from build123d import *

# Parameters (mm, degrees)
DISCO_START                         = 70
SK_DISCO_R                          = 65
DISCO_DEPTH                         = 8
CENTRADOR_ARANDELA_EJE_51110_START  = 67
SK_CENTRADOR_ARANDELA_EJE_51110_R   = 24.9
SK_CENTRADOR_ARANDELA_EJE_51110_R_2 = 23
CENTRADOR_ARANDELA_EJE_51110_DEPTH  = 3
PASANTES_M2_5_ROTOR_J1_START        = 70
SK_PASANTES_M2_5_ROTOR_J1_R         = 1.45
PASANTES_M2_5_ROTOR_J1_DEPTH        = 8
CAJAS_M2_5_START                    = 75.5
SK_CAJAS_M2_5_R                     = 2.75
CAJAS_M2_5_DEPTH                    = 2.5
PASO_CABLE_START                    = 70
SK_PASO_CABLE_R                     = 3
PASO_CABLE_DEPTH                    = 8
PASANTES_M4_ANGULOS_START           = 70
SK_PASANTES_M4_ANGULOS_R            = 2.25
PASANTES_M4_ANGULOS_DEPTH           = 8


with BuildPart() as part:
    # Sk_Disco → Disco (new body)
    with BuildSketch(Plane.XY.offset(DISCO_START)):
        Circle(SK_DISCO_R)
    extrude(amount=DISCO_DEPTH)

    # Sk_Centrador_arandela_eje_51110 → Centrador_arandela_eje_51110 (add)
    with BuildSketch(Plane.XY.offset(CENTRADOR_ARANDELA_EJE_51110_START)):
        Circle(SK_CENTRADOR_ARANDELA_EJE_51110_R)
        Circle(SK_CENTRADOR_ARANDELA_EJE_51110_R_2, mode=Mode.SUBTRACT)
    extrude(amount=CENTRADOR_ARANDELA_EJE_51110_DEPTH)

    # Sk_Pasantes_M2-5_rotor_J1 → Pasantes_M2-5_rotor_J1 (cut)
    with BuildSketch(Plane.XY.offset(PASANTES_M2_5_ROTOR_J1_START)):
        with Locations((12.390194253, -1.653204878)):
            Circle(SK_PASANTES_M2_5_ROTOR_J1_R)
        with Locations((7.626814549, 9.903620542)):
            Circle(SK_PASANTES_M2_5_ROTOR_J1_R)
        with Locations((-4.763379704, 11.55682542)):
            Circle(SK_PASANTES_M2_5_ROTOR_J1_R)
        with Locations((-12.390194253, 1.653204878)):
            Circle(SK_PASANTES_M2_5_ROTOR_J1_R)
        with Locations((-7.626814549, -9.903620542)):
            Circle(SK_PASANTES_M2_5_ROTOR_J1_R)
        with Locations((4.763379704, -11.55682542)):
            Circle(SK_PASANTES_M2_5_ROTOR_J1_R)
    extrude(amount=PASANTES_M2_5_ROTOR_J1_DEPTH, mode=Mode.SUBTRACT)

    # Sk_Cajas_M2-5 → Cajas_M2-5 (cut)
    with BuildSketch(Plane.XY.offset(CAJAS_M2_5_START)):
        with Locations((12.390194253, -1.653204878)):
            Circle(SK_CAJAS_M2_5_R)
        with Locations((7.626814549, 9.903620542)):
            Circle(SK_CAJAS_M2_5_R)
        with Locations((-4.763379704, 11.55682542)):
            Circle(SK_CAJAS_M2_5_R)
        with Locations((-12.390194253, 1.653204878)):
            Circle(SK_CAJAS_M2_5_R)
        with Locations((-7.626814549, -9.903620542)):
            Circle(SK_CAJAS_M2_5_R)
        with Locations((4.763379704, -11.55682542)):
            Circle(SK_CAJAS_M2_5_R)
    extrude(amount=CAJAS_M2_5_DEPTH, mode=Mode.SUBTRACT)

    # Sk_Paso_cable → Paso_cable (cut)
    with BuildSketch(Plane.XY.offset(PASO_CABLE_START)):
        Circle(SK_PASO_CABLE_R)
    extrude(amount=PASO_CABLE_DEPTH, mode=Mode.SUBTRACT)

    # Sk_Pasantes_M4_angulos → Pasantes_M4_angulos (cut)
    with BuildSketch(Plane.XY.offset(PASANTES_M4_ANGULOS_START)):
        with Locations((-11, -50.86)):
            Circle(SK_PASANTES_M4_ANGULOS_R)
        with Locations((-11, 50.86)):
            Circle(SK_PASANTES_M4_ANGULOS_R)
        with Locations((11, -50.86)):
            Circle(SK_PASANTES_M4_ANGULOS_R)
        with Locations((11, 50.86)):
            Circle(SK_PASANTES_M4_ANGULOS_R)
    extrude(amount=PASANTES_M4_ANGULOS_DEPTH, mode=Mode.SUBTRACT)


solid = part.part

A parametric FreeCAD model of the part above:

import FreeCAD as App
import Part
import Sketcher
from FreeCAD import Vector
Q = App.Units.Quantity

doc = App.newDocument("Part")
body = doc.addObject("PartDesign::Body", "Body")

# Sketch on XY plane
sketch1 = body.newObject("Sketcher::SketchObject", "Sketch")
sketch1.AttachmentSupport = (doc.getObject("XY_Plane"), [""])
sketch1.MapMode = "FlatFace"
sketch1.AttachmentOffset = App.Placement(Vector(0, 0, 70), App.Rotation())
sketch1.addGeometry(Part.Circle(Vector(0, 0, 0), Vector(0, 0, 1), 65), False)
sketch1.addConstraint([
    Sketcher.Constraint("Coincident", 0, 3, -1, 1),
    Sketcher.Constraint("Diameter", 0, Q("130 mm")),
])
pad1 = body.newObject("PartDesign::Pad", "Pad")
pad1.Profile = sketch1
pad1.Length = 8

# Sketch on XY plane
sketch2 = body.newObject("Sketcher::SketchObject", "Sketch001")
sketch2.AttachmentSupport = (doc.getObject("XY_Plane"), [""])
sketch2.MapMode = "FlatFace"
sketch2.AttachmentOffset = App.Placement(Vector(0, 0, 67), App.Rotation())
sketch2.addGeometry([
    Part.Circle(Vector(0, 0, 0), Vector(0, 0, 1), 25),
    Part.Circle(Vector(0, 0, 0), Vector(0, 0, 1), 23),
], False)
sketch2.addConstraint([
    Sketcher.Constraint("Coincident", 0, 3, -1, 1),
    Sketcher.Constraint("Coincident", 1, 3, -1, 1),
    Sketcher.Constraint("Diameter", 1, Q("46 mm")),
    Sketcher.Constraint("Diameter", 0, Q("49.8 mm")),
])
pad2 = body.newObject("PartDesign::Pad", "Pad001")
pad2.Profile = sketch2
pad2.Length = 3

# Sketch on XY plane
sketch3 = body.newObject("Sketcher::SketchObject", "Sketch002")
sketch3.AttachmentSupport = (doc.getObject("XY_Plane"), [""])
sketch3.MapMode = "FlatFace"
sketch3.AttachmentOffset = App.Placement(Vector(0, 0, 70), App.Rotation())
sketch3.addGeometry([
    Part.Circle(Vector(12.4, -1.7, 0), Vector(0, 0, 1), 1.4),  # 0
    Part.Circle(Vector(7.6, 9.9, 0), Vector(0, 0, 1), 1.4),  # 1
    Part.Circle(Vector(-4.8, 11.6, 0), Vector(0, 0, 1), 1.4),  # 2
    Part.Circle(Vector(-12.4, 1.7, 0), Vector(0, 0, 1), 1.4),  # 3
    Part.Circle(Vector(-7.6, -9.9, 0), Vector(0, 0, 1), 1.4),  # 4
    Part.Circle(Vector(4.8, -11.6, 0), Vector(0, 0, 1), 1.4),  # 5
], False)
sketch3.addConstraint([
    Sketcher.Constraint("Equal", 0, 1),
    Sketcher.Constraint("Equal", 1, 2),
    Sketcher.Constraint("Equal", 2, 3),
    Sketcher.Constraint("Equal", 3, 4),
    Sketcher.Constraint("Equal", 4, 5),
    Sketcher.Constraint("Symmetric", 0, 3, 3, 3, -1, 1),
    Sketcher.Constraint("Symmetric", 1, 3, 4, 3, -1, 1),
    Sketcher.Constraint("Symmetric", 2, 3, 5, 3, -1, 1),
    Sketcher.Constraint("Diameter", 0, Q("2.9 mm")),
    Sketcher.Constraint("DistanceY", -1, 1, 1, 3, Q("9.903621 mm")),
    Sketcher.Constraint("DistanceX", 2, 3, -1, 1, Q("4.76338 mm")),
    Sketcher.Constraint("DistanceX", 1, 3, 0, 3, Q("4.76338 mm")),
    Sketcher.Constraint("DistanceY", 0, 3, 2, 3, Q("13.21003 mm")),
    Sketcher.Constraint("DistanceY", 3, 3, 2, 3, Q("9.903621 mm")),
    Sketcher.Constraint("DistanceX", 3, 3, 1, 3, Q("20.017009 mm")),
])
pocket1 = body.newObject("PartDesign::Pocket", "Pocket")
pocket1.Profile = sketch3
pocket1.Length = 8
pocket1.Reversed = True

# Sketch on XY plane
sketch4 = body.newObject("Sketcher::SketchObject", "Sketch003")
sketch4.AttachmentSupport = (doc.getObject("XY_Plane"), [""])
sketch4.MapMode = "FlatFace"
sketch4.AttachmentOffset = App.Placement(Vector(0, 0, 75.5), App.Rotation())
sketch4.addGeometry([
    Part.Circle(Vector(12.4, -1.7, 0), Vector(0, 0, 1), 2.8),  # 0
    Part.Circle(Vector(7.6, 9.9, 0), Vector(0, 0, 1), 2.8),  # 1
    Part.Circle(Vector(-4.8, 11.6, 0), Vector(0, 0, 1), 2.8),  # 2
    Part.Circle(Vector(-12.4, 1.7, 0), Vector(0, 0, 1), 2.8),  # 3
    Part.Circle(Vector(-7.6, -9.9, 0), Vector(0, 0, 1), 2.8),  # 4
    Part.Circle(Vector(4.8, -11.6, 0), Vector(0, 0, 1), 2.8),  # 5
], False)
sketch4.addConstraint([
    Sketcher.Constraint("Equal", 0, 1),
    Sketcher.Constraint("Equal", 1, 2),
    Sketcher.Constraint("Equal", 2, 3),
    Sketcher.Constraint("Equal", 3, 4),
    Sketcher.Constraint("Equal", 4, 5),
    Sketcher.Constraint("Symmetric", 0, 3, 3, 3, -1, 1),
    Sketcher.Constraint("Symmetric", 1, 3, 4, 3, -1, 1),
    Sketcher.Constraint("Symmetric", 2, 3, 5, 3, -1, 1),
    Sketcher.Constraint("Diameter", 0, Q("5.5 mm")),
    Sketcher.Constraint("DistanceY", -1, 1, 1, 3, Q("9.903621 mm")),
    Sketcher.Constraint("DistanceX", 2, 3, -1, 1, Q("4.76338 mm")),
    Sketcher.Constraint("DistanceX", 1, 3, 0, 3, Q("4.76338 mm")),
    Sketcher.Constraint("DistanceY", 0, 3, 2, 3, Q("13.21003 mm")),
    Sketcher.Constraint("DistanceY", 3, 3, 2, 3, Q("9.903621 mm")),
    Sketcher.Constraint("DistanceX", 3, 3, 1, 3, Q("20.017009 mm")),
])
pocket2 = body.newObject("PartDesign::Pocket", "Pocket001")
pocket2.Profile = sketch4
pocket2.Length = 2.5
pocket2.Reversed = True

# Sketch on XY plane
sketch5 = body.newObject("Sketcher::SketchObject", "Sketch004")
sketch5.AttachmentSupport = (doc.getObject("XY_Plane"), [""])
sketch5.MapMode = "FlatFace"
sketch5.AttachmentOffset = App.Placement(Vector(0, 0, 70), App.Rotation())
sketch5.addGeometry(Part.Circle(Vector(0, 0, 0), Vector(0, 0, 1), 3), False)
sketch5.addConstraint([
    Sketcher.Constraint("Coincident", 0, 3, -1, 1),
    Sketcher.Constraint("Diameter", 0, Q("6 mm")),
])
pocket3 = body.newObject("PartDesign::Pocket", "Pocket002")
pocket3.Profile = sketch5
pocket3.Length = 8
pocket3.Reversed = True

# Sketch on XY plane
sketch6 = body.newObject("Sketcher::SketchObject", "Sketch005")
sketch6.AttachmentSupport = (doc.getObject("XY_Plane"), [""])
sketch6.MapMode = "FlatFace"
sketch6.AttachmentOffset = App.Placement(Vector(0, 0, 70), App.Rotation())
sketch6.addGeometry([
    Part.Circle(Vector(-11, -50.9, 0), Vector(0, 0, 1), 2.2),
    Part.Circle(Vector(-11, 50.9, 0), Vector(0, 0, 1), 2.2),
    Part.Circle(Vector(11, -50.9, 0), Vector(0, 0, 1), 2.2),
    Part.Circle(Vector(11, 50.9, 0), Vector(0, 0, 1), 2.2),
], False)
sketch6.addConstraint([
    Sketcher.Constraint("Equal", 0, 1),
    Sketcher.Constraint("Equal", 1, 2),
    Sketcher.Constraint("Equal", 2, 3),
    Sketcher.Constraint("Symmetric", 1, 3, 2, 3, -1, 1),
    Sketcher.Constraint("Symmetric", 0, 3, 3, 3, -1, 1),
    Sketcher.Constraint("Symmetric", 0, 3, 2, 3, -2),
    Sketcher.Constraint("Diameter", 0, Q("4.5 mm")),
    Sketcher.Constraint("DistanceX", 0, 3, -1, 1, Q("11 mm")),
    Sketcher.Constraint("DistanceY", 0, 3, -1, 1, Q("50.86 mm")),
])
pocket4 = body.newObject("PartDesign::Pocket", "Pocket003")
pocket4.Profile = sketch6
pocket4.Length = 8
pocket4.Reversed = True

doc.recompute()
